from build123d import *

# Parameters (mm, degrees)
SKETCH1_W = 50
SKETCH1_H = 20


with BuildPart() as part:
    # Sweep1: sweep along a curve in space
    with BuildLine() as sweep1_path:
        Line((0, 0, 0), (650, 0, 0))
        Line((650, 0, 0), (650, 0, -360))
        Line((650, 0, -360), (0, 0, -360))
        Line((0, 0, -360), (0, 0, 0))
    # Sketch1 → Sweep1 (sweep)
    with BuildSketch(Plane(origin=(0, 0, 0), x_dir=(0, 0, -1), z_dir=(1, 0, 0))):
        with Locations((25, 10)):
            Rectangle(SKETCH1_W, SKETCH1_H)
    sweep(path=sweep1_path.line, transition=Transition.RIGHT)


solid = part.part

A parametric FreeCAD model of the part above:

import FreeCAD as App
import Part
import Sketcher
from FreeCAD import Vector

doc = App.newDocument("Part")
params = doc.addObject("Spreadsheet::Sheet", "Params")
for row, (alias, value) in enumerate([
    ("sketch1_width", "20 mm"),
    ("sketch1_height", "50 mm"),
    ("sketch2_width", "650 mm"),
    ("sketch2_height", "360 mm"),
], start=1):
    params.set(f"A{row}", alias)
    params.set(f"B{row}", "=" + value)
    params.setAlias(f"B{row}", alias)

body = doc.addObject("PartDesign::Body", "Body")

# Sketch on YZ plane
sketch1 = body.newObject("Sketcher::SketchObject", "Sketch")
sketch1.AttachmentSupport = (doc.getObject("YZ_Plane"), [""])
sketch1.MapMode = "FlatFace"
sketch1.addGeometry([
    Part.LineSegment(Vector(20, 0, 0), Vector(0, 0, 0)),
    Part.LineSegment(Vector(0, 0, 0), Vector(0, -50, 0)),
    Part.LineSegment(Vector(0, -50, 0), Vector(20, -50, 0)),
    Part.LineSegment(Vector(20, -50, 0), Vector(20, 0, 0)),
], False)
sketch1.addConstraint([
    Sketcher.Constraint("Coincident", 0, 2, 1, 1),
    Sketcher.Constraint("Coincident", 1, 2, 2, 1),
    Sketcher.Constraint("Coincident", 2, 2, 3, 1),
    Sketcher.Constraint("Coincident", 3, 2, 0, 1),
    Sketcher.Constraint("Horizontal", 0),
    Sketcher.Constraint("Vertical", 1),
    Sketcher.Constraint("Horizontal", 2),
    Sketcher.Constraint("Vertical", 3),
    Sketcher.Constraint("Coincident", 0, 2, -1, 1),
    Sketcher.Constraint("DistanceX", 0, 2, 0, 1, 20.0),
    Sketcher.Constraint("DistanceY", 1, 2, 1, 1, 50.0),
])
sketch1.setExpression("Constraints[9]", "Params.sketch1_width")
sketch1.setExpression("Constraints[10]", "Params.sketch1_height")

# Sketch on XZ plane
sketch2 = body.newObject("Sketcher::SketchObject", "Sketch001")
sketch2.AttachmentSupport = (doc.getObject("XZ_Plane"), [""])
sketch2.MapMode = "FlatFace"
sketch2.addGeometry([
    Part.LineSegment(Vector(0, 0, 0), Vector(650, 0, 0)),
    Part.LineSegment(Vector(650, 0, 0), Vector(650, -360, 0)),
    Part.LineSegment(Vector(650, -360, 0), Vector(0, -360, 0)),
    Part.LineSegment(Vector(0, -360, 0), Vector(0, 0, 0)),
], False)
sketch2.addConstraint([
    Sketcher.Constraint("Coincident", 0, 2, 1, 1),
    Sketcher.Constraint("Coincident", 1, 2, 2, 1),
    Sketcher.Constraint("Coincident", 2, 2, 3, 1),
    Sketcher.Constraint("Coincident", 3, 2, 0, 1),
    Sketcher.Constraint("Horizontal", 0),
    Sketcher.Constraint("Vertical", 1),
    Sketcher.Constraint("Horizontal", 2),
    Sketcher.Constraint("Vertical", 3),
    Sketcher.Constraint("Coincident", 3, 2, -1, 1),
    Sketcher.Constraint("DistanceX", 0, 1, 0, 2, 650.0),
    Sketcher.Constraint("DistanceY", 1, 2, 1, 1, 360.0),
])
sketch2.setExpression("Constraints[9]", "Params.sketch2_width")
sketch2.setExpression("Constraints[10]", "Params.sketch2_height")
doc.recompute()

additivepipe = body.newObject("PartDesign::AdditivePipe", "AdditivePipe")
additivepipe.Profile = sketch1
additivepipe.Spine = (sketch2, ["Edge1", "Edge2", "Edge3", "Edge4"])
additivepipe.Transition = "Right corner"

doc.recompute()
